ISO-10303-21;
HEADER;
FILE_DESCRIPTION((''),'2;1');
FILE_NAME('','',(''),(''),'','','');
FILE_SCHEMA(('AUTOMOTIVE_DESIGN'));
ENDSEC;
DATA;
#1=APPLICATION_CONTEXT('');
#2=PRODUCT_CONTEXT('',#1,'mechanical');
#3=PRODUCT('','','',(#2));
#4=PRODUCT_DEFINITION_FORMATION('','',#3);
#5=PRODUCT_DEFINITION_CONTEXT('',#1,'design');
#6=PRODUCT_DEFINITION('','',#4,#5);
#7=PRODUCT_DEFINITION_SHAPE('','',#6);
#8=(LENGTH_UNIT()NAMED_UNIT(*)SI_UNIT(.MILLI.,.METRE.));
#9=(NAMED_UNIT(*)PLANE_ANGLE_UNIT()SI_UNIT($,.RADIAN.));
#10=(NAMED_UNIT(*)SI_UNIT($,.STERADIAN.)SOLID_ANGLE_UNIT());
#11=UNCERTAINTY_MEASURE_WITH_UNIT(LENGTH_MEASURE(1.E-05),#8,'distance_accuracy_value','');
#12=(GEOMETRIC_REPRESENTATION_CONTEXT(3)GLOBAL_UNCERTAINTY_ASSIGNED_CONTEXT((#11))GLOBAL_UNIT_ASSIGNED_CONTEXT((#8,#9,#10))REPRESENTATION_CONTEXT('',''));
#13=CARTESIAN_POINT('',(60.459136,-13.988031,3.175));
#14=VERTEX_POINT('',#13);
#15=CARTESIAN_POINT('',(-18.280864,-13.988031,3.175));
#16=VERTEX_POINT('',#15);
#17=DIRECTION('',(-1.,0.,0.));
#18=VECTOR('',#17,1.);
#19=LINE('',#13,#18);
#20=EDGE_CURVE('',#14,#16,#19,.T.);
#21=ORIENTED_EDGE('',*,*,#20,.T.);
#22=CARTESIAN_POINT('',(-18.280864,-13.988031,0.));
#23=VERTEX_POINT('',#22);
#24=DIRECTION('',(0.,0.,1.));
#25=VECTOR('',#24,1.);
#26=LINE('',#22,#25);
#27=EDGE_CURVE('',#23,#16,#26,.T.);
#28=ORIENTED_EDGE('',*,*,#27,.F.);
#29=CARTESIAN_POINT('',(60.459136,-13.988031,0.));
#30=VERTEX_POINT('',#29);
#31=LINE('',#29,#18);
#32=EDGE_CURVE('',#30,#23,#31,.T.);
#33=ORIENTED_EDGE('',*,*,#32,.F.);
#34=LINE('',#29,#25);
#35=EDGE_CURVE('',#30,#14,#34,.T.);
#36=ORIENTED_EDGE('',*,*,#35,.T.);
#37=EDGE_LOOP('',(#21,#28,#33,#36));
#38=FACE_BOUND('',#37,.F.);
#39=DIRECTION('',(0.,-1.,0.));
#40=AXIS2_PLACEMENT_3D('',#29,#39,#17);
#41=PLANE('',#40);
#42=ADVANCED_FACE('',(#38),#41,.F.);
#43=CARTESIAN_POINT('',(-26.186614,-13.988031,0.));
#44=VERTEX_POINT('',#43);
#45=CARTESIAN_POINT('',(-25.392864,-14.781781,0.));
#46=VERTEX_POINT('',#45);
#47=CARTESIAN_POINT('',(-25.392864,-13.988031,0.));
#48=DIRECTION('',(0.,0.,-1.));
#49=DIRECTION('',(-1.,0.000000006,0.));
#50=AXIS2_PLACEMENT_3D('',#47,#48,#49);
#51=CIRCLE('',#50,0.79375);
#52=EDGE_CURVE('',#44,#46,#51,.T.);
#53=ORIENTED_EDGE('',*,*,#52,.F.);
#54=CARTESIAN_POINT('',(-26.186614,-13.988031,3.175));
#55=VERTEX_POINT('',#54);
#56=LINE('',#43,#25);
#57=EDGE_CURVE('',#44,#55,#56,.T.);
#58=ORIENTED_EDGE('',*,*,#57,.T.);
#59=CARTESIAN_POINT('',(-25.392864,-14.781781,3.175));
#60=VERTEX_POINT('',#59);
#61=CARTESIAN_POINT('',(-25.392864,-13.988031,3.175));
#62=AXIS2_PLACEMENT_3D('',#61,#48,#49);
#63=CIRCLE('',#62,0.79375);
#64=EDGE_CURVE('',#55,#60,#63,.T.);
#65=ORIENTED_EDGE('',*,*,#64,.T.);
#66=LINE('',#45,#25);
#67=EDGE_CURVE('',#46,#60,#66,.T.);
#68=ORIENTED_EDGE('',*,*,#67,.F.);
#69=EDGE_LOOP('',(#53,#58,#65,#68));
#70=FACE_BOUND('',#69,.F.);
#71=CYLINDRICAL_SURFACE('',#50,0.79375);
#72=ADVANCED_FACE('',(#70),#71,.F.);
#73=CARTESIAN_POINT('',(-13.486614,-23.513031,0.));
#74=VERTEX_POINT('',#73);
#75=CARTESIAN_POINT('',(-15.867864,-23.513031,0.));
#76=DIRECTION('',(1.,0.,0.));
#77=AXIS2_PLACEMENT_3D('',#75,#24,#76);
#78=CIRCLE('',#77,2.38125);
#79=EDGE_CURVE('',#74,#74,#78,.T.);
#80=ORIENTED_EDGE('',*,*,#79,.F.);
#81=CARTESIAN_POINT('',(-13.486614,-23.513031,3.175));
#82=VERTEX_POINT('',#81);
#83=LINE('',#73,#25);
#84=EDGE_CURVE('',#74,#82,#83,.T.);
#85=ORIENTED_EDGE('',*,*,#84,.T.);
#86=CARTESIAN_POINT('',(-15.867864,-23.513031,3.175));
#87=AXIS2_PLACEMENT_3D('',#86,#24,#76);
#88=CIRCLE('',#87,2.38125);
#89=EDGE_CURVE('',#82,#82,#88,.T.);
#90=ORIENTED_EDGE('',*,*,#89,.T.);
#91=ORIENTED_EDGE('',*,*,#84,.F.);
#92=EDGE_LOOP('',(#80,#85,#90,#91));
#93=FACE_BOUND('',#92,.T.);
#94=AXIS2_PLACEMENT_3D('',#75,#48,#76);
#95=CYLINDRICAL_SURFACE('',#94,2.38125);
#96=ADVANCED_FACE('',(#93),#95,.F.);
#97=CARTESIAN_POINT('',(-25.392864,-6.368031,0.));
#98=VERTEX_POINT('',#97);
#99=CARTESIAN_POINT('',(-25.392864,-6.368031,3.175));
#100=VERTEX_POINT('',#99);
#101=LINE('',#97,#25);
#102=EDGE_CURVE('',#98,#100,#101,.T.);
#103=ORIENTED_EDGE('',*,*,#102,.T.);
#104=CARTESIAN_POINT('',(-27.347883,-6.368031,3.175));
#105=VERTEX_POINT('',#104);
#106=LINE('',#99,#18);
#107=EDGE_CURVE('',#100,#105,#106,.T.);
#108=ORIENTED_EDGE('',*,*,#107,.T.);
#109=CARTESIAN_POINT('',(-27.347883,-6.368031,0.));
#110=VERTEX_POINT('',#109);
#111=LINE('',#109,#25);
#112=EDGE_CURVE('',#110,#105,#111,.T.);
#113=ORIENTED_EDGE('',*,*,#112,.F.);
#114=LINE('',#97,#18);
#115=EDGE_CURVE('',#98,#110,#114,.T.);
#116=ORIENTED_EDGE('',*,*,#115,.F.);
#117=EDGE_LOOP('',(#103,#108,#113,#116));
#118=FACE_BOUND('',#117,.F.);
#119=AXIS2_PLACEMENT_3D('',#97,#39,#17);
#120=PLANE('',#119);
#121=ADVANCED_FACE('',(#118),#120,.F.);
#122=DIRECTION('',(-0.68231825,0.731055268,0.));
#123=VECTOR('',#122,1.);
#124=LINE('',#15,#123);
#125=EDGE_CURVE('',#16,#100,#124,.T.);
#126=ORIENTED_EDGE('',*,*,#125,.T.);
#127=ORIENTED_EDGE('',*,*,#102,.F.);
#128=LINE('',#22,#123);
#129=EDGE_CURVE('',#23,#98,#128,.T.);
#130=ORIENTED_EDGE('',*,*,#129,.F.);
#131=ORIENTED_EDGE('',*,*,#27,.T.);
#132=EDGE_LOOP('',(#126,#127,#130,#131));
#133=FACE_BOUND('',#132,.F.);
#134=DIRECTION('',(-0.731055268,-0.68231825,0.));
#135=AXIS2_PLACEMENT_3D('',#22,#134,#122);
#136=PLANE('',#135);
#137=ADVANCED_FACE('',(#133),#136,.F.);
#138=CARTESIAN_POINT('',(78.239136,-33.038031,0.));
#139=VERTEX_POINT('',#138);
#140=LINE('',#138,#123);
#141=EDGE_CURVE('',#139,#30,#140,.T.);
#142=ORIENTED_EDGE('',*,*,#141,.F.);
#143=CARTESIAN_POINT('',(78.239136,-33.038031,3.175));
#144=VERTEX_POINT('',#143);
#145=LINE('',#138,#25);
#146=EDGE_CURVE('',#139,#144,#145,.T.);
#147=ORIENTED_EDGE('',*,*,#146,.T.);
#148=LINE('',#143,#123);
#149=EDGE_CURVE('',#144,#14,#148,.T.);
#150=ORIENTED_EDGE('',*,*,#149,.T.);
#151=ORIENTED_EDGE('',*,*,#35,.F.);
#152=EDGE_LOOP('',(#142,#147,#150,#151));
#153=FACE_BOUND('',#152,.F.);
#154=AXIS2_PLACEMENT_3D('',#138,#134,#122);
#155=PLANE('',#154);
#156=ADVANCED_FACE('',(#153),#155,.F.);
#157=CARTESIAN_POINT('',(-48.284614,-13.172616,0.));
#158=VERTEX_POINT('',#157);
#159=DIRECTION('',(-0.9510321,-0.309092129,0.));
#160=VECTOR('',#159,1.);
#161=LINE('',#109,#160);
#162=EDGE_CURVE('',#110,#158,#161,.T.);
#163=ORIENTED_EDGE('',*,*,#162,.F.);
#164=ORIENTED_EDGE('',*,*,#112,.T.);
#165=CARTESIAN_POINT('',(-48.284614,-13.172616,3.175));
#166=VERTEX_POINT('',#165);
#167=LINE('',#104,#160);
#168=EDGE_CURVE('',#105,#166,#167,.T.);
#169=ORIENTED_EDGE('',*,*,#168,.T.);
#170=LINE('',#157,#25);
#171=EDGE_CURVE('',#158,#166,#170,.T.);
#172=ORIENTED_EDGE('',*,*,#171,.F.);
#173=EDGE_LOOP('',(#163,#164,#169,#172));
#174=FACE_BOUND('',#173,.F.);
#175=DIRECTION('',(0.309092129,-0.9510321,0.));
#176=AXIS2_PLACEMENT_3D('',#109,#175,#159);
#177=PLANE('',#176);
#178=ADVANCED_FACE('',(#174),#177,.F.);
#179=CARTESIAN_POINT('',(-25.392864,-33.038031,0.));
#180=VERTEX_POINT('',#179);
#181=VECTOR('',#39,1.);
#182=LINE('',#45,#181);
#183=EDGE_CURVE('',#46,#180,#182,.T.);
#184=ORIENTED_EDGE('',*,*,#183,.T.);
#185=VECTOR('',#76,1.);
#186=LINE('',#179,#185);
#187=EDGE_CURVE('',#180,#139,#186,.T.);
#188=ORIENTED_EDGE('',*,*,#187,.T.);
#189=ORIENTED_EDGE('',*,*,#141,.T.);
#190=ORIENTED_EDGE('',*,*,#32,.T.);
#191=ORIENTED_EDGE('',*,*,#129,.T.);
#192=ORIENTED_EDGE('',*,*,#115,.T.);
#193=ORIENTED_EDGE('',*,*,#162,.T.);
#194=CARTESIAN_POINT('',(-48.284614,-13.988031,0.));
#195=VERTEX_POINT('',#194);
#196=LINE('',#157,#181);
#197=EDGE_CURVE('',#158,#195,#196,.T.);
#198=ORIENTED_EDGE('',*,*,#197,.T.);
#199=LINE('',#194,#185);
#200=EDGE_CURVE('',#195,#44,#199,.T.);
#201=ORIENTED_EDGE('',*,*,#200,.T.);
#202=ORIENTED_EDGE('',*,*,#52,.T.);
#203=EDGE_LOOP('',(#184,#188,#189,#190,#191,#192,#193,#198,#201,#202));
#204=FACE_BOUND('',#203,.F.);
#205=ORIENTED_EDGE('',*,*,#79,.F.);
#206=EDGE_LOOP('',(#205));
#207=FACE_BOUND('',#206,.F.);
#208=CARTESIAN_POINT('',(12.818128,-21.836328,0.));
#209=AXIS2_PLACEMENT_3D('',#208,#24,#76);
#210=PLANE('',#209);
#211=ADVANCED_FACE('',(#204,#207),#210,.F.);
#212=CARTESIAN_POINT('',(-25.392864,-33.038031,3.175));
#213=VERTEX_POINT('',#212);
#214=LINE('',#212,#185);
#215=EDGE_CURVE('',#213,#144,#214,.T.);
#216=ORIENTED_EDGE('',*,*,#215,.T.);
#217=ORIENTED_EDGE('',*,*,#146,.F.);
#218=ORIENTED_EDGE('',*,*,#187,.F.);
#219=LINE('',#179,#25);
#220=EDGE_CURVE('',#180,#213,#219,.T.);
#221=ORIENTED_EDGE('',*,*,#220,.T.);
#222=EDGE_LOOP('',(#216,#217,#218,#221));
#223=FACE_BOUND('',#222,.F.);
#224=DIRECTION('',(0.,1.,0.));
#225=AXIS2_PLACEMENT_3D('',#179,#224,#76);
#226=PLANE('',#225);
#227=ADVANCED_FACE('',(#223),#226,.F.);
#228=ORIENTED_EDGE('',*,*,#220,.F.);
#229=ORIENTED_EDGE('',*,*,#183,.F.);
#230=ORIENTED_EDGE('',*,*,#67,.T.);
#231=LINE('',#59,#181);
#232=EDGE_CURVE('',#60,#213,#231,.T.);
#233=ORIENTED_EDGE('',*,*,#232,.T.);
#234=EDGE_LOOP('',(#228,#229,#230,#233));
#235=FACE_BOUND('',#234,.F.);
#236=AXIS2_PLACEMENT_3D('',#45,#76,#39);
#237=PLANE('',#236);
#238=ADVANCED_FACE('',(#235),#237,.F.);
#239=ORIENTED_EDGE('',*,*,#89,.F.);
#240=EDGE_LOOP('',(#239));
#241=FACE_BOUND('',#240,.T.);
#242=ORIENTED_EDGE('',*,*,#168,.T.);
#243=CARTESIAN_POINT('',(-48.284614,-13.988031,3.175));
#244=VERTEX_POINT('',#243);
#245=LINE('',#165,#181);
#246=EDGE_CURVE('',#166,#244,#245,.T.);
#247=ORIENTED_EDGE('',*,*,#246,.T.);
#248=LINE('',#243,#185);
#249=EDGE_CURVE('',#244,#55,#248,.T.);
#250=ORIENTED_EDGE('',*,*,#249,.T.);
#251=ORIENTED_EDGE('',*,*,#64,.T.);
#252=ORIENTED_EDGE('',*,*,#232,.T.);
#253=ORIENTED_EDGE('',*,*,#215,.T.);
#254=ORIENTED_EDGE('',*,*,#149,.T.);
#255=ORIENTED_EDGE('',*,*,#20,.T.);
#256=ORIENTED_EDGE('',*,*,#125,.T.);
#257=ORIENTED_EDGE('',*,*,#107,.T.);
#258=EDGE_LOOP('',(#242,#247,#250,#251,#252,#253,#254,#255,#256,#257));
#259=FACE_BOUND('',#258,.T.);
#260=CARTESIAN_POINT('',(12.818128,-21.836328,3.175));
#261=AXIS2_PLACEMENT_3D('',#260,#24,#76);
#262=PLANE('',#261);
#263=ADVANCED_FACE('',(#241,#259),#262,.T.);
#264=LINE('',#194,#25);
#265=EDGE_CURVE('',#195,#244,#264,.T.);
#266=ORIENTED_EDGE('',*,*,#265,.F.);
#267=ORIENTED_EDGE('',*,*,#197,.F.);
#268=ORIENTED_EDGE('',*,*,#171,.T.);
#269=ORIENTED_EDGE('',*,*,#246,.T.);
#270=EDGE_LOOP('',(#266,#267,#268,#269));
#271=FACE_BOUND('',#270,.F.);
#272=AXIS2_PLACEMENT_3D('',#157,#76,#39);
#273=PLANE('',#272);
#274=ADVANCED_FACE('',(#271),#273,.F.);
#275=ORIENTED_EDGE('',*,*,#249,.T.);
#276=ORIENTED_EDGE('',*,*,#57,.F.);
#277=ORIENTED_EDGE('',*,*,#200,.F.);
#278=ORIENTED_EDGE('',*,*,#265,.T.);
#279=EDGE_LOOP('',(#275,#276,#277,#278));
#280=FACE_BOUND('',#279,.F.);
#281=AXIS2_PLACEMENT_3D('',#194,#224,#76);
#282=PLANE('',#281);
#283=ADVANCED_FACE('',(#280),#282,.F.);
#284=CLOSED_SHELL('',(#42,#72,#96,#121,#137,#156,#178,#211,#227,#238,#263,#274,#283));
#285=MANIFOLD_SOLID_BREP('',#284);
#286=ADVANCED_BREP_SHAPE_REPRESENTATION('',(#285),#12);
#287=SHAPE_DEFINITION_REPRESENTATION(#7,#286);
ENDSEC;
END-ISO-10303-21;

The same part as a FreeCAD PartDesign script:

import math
import FreeCAD as App
import Part
import Sketcher
from FreeCAD import Vector
Q = App.Units.Quantity

doc = App.newDocument("Part")
body = doc.addObject("PartDesign::Body", "Body")

# Sketch on XY plane
sketch1 = body.newObject("Sketcher::SketchObject", "Sketch")
sketch1.AttachmentSupport = (doc.getObject("XY_Plane"), [""])
sketch1.MapMode = "FlatFace"
sketch1.addGeometry(Part.LineSegment(Vector(-25.392864, -14.781781, 0), Vector(-25.392864, -33.038031, 0)), False)
sketch1.addGeometry(Part.LineSegment(Vector(-25.392864, -33.038031, 0), Vector(78.239136, -33.038031, 0)), False)
sketch1.addGeometry(Part.LineSegment(Vector(78.239136, -33.038031, 0), Vector(60.459136, -13.988031, 0)), False)
sketch1.addGeometry(Part.LineSegment(Vector(60.459136, -13.988031, 0), Vector(-18.280864, -13.988031, 0)), False)
sketch1.addGeometry(Part.LineSegment(Vector(-18.280864, -13.988031, 0), Vector(-25.392864, -6.368031, 0)), False)
sketch1.addGeometry(Part.LineSegment(Vector(-25.392864, -6.368031, 0), Vector(-27.347883, -6.368031, 0)), False)
sketch1.addGeometry(Part.LineSegment(Vector(-27.347883, -6.368031, 0), Vector(-48.284614, -13.172616, 0)), False)
sketch1.addGeometry(Part.LineSegment(Vector(-48.284614, -13.172616, 0), Vector(-48.284614, -13.988031, 0)), False)
sketch1.addGeometry(Part.LineSegment(Vector(-48.284614, -13.988031, 0), Vector(-26.186614, -13.988031, 0)), False)
sketch1.addGeometry(Part.ArcOfCircle(Part.Circle(Vector(-25.392864, -13.988031, 0), Vector(0, 0, 1), 0.79375), math.radians(-90), math.radians(180)), False)
sketch1.addGeometry(Part.Circle(Vector(-15.867864, -23.513031, 0), Vector(0, 0, 1), 2.38125), False)
sketch1.addConstraint(Sketcher.Constraint("Coincident", 0, 2, 1, 1))
sketch1.addConstraint(Sketcher.Constraint("Coincident", 1, 2, 2, 1))
sketch1.addConstraint(Sketcher.Constraint("Coincident", 2, 2, 3, 1))
sketch1.addConstraint(Sketcher.Constraint("Coincident", 3, 2, 4, 1))
sketch1.addConstraint(Sketcher.Constraint("Coincident", 4, 2, 5, 1))
sketch1.addConstraint(Sketcher.Constraint("Coincident", 5, 2, 6, 1))
sketch1.addConstraint(Sketcher.Constraint("Coincident", 6, 2, 7, 1))
sketch1.addConstraint(Sketcher.Constraint("Coincident", 7, 2, 8, 1))
sketch1.addConstraint(Sketcher.Constraint("Coincident", 8, 2, 9, 2))
sketch1.addConstraint(Sketcher.Constraint("Coincident", 9, 1, 0, 1))
sketch1.addConstraint(Sketcher.Constraint("Vertical", 0))
sketch1.addConstraint(Sketcher.Constraint("Horizontal", 1))
sketch1.addConstraint(Sketcher.Constraint("Horizontal", 3))
sketch1.addConstraint(Sketcher.Constraint("Horizontal", 5))
sketch1.addConstraint(Sketcher.Constraint("Vertical", 7))
sketch1.addConstraint(Sketcher.Constraint("Horizontal", 8))
sketch1.addConstraint(Sketcher.Constraint("Parallel", 2, 4))
sketch1.addConstraint(Sketcher.Constraint("Horizontal", 9, 3, 2, 2))
sketch1.addConstraint(Sketcher.Constraint("Horizontal", 3, 2, 7, 2))
sketch1.addConstraint(Sketcher.Constraint("Vertical", 9, 3, 0, 2))
sketch1.addConstraint(Sketcher.Constraint("Vertical", 0, 2, 4, 2))
sketch1.addConstraint(Sketcher.Constraint("Diameter", 10, Q("0.1875 in")))
sketch1.addConstraint(Sketcher.Constraint("DistanceX", 3, 2, 3, 1, Q("3.1 in")))
sketch1.addConstraint(Sketcher.Constraint("Radius", 9, Q("0.03125 in")))
sketch1.addConstraint(Sketcher.Constraint("DistanceX", 1, 1, 1, 2, Q("4.08 in")))
sketch1.addConstraint(Sketcher.Constraint("DistanceX", 8, 1, 8, 2, Q("0.87 in")))
sketch1.addConstraint(Sketcher.Constraint("DistanceX", 2, 2, 1, 2, Q("0.7 in")))
sketch1.addConstraint(Sketcher.Constraint("DistanceY", 9, 3, 4, 2, Q("0.3 in")))
sketch1.addConstraint(Sketcher.Constraint("DistanceX", 9, 3, 10, 3, Q("0.375 in")))
sketch1.addConstraint(Sketcher.Constraint("DistanceY", 10, 3, 9, 3, Q("0.375 in")))
sketch1.addConstraint(Sketcher.Constraint("DistanceX", 5, 2, 5, 1, 1.955019))
sketch1.addConstraint(Sketcher.Constraint("DistanceY", 7, 2, 7, 1, 0.815415))
sketch1.addConstraint(Sketcher.Constraint("DistanceY", 9, 3, -1, 1, 13.988031))
sketch1.addConstraint(Sketcher.Constraint("DistanceX", 9, 3, -1, 1, 25.392864))
pad1 = body.newObject("PartDesign::Pad", "Pad")
pad1.Profile = sketch1
pad1.Length = Q("0.125 in")

doc.recompute()
